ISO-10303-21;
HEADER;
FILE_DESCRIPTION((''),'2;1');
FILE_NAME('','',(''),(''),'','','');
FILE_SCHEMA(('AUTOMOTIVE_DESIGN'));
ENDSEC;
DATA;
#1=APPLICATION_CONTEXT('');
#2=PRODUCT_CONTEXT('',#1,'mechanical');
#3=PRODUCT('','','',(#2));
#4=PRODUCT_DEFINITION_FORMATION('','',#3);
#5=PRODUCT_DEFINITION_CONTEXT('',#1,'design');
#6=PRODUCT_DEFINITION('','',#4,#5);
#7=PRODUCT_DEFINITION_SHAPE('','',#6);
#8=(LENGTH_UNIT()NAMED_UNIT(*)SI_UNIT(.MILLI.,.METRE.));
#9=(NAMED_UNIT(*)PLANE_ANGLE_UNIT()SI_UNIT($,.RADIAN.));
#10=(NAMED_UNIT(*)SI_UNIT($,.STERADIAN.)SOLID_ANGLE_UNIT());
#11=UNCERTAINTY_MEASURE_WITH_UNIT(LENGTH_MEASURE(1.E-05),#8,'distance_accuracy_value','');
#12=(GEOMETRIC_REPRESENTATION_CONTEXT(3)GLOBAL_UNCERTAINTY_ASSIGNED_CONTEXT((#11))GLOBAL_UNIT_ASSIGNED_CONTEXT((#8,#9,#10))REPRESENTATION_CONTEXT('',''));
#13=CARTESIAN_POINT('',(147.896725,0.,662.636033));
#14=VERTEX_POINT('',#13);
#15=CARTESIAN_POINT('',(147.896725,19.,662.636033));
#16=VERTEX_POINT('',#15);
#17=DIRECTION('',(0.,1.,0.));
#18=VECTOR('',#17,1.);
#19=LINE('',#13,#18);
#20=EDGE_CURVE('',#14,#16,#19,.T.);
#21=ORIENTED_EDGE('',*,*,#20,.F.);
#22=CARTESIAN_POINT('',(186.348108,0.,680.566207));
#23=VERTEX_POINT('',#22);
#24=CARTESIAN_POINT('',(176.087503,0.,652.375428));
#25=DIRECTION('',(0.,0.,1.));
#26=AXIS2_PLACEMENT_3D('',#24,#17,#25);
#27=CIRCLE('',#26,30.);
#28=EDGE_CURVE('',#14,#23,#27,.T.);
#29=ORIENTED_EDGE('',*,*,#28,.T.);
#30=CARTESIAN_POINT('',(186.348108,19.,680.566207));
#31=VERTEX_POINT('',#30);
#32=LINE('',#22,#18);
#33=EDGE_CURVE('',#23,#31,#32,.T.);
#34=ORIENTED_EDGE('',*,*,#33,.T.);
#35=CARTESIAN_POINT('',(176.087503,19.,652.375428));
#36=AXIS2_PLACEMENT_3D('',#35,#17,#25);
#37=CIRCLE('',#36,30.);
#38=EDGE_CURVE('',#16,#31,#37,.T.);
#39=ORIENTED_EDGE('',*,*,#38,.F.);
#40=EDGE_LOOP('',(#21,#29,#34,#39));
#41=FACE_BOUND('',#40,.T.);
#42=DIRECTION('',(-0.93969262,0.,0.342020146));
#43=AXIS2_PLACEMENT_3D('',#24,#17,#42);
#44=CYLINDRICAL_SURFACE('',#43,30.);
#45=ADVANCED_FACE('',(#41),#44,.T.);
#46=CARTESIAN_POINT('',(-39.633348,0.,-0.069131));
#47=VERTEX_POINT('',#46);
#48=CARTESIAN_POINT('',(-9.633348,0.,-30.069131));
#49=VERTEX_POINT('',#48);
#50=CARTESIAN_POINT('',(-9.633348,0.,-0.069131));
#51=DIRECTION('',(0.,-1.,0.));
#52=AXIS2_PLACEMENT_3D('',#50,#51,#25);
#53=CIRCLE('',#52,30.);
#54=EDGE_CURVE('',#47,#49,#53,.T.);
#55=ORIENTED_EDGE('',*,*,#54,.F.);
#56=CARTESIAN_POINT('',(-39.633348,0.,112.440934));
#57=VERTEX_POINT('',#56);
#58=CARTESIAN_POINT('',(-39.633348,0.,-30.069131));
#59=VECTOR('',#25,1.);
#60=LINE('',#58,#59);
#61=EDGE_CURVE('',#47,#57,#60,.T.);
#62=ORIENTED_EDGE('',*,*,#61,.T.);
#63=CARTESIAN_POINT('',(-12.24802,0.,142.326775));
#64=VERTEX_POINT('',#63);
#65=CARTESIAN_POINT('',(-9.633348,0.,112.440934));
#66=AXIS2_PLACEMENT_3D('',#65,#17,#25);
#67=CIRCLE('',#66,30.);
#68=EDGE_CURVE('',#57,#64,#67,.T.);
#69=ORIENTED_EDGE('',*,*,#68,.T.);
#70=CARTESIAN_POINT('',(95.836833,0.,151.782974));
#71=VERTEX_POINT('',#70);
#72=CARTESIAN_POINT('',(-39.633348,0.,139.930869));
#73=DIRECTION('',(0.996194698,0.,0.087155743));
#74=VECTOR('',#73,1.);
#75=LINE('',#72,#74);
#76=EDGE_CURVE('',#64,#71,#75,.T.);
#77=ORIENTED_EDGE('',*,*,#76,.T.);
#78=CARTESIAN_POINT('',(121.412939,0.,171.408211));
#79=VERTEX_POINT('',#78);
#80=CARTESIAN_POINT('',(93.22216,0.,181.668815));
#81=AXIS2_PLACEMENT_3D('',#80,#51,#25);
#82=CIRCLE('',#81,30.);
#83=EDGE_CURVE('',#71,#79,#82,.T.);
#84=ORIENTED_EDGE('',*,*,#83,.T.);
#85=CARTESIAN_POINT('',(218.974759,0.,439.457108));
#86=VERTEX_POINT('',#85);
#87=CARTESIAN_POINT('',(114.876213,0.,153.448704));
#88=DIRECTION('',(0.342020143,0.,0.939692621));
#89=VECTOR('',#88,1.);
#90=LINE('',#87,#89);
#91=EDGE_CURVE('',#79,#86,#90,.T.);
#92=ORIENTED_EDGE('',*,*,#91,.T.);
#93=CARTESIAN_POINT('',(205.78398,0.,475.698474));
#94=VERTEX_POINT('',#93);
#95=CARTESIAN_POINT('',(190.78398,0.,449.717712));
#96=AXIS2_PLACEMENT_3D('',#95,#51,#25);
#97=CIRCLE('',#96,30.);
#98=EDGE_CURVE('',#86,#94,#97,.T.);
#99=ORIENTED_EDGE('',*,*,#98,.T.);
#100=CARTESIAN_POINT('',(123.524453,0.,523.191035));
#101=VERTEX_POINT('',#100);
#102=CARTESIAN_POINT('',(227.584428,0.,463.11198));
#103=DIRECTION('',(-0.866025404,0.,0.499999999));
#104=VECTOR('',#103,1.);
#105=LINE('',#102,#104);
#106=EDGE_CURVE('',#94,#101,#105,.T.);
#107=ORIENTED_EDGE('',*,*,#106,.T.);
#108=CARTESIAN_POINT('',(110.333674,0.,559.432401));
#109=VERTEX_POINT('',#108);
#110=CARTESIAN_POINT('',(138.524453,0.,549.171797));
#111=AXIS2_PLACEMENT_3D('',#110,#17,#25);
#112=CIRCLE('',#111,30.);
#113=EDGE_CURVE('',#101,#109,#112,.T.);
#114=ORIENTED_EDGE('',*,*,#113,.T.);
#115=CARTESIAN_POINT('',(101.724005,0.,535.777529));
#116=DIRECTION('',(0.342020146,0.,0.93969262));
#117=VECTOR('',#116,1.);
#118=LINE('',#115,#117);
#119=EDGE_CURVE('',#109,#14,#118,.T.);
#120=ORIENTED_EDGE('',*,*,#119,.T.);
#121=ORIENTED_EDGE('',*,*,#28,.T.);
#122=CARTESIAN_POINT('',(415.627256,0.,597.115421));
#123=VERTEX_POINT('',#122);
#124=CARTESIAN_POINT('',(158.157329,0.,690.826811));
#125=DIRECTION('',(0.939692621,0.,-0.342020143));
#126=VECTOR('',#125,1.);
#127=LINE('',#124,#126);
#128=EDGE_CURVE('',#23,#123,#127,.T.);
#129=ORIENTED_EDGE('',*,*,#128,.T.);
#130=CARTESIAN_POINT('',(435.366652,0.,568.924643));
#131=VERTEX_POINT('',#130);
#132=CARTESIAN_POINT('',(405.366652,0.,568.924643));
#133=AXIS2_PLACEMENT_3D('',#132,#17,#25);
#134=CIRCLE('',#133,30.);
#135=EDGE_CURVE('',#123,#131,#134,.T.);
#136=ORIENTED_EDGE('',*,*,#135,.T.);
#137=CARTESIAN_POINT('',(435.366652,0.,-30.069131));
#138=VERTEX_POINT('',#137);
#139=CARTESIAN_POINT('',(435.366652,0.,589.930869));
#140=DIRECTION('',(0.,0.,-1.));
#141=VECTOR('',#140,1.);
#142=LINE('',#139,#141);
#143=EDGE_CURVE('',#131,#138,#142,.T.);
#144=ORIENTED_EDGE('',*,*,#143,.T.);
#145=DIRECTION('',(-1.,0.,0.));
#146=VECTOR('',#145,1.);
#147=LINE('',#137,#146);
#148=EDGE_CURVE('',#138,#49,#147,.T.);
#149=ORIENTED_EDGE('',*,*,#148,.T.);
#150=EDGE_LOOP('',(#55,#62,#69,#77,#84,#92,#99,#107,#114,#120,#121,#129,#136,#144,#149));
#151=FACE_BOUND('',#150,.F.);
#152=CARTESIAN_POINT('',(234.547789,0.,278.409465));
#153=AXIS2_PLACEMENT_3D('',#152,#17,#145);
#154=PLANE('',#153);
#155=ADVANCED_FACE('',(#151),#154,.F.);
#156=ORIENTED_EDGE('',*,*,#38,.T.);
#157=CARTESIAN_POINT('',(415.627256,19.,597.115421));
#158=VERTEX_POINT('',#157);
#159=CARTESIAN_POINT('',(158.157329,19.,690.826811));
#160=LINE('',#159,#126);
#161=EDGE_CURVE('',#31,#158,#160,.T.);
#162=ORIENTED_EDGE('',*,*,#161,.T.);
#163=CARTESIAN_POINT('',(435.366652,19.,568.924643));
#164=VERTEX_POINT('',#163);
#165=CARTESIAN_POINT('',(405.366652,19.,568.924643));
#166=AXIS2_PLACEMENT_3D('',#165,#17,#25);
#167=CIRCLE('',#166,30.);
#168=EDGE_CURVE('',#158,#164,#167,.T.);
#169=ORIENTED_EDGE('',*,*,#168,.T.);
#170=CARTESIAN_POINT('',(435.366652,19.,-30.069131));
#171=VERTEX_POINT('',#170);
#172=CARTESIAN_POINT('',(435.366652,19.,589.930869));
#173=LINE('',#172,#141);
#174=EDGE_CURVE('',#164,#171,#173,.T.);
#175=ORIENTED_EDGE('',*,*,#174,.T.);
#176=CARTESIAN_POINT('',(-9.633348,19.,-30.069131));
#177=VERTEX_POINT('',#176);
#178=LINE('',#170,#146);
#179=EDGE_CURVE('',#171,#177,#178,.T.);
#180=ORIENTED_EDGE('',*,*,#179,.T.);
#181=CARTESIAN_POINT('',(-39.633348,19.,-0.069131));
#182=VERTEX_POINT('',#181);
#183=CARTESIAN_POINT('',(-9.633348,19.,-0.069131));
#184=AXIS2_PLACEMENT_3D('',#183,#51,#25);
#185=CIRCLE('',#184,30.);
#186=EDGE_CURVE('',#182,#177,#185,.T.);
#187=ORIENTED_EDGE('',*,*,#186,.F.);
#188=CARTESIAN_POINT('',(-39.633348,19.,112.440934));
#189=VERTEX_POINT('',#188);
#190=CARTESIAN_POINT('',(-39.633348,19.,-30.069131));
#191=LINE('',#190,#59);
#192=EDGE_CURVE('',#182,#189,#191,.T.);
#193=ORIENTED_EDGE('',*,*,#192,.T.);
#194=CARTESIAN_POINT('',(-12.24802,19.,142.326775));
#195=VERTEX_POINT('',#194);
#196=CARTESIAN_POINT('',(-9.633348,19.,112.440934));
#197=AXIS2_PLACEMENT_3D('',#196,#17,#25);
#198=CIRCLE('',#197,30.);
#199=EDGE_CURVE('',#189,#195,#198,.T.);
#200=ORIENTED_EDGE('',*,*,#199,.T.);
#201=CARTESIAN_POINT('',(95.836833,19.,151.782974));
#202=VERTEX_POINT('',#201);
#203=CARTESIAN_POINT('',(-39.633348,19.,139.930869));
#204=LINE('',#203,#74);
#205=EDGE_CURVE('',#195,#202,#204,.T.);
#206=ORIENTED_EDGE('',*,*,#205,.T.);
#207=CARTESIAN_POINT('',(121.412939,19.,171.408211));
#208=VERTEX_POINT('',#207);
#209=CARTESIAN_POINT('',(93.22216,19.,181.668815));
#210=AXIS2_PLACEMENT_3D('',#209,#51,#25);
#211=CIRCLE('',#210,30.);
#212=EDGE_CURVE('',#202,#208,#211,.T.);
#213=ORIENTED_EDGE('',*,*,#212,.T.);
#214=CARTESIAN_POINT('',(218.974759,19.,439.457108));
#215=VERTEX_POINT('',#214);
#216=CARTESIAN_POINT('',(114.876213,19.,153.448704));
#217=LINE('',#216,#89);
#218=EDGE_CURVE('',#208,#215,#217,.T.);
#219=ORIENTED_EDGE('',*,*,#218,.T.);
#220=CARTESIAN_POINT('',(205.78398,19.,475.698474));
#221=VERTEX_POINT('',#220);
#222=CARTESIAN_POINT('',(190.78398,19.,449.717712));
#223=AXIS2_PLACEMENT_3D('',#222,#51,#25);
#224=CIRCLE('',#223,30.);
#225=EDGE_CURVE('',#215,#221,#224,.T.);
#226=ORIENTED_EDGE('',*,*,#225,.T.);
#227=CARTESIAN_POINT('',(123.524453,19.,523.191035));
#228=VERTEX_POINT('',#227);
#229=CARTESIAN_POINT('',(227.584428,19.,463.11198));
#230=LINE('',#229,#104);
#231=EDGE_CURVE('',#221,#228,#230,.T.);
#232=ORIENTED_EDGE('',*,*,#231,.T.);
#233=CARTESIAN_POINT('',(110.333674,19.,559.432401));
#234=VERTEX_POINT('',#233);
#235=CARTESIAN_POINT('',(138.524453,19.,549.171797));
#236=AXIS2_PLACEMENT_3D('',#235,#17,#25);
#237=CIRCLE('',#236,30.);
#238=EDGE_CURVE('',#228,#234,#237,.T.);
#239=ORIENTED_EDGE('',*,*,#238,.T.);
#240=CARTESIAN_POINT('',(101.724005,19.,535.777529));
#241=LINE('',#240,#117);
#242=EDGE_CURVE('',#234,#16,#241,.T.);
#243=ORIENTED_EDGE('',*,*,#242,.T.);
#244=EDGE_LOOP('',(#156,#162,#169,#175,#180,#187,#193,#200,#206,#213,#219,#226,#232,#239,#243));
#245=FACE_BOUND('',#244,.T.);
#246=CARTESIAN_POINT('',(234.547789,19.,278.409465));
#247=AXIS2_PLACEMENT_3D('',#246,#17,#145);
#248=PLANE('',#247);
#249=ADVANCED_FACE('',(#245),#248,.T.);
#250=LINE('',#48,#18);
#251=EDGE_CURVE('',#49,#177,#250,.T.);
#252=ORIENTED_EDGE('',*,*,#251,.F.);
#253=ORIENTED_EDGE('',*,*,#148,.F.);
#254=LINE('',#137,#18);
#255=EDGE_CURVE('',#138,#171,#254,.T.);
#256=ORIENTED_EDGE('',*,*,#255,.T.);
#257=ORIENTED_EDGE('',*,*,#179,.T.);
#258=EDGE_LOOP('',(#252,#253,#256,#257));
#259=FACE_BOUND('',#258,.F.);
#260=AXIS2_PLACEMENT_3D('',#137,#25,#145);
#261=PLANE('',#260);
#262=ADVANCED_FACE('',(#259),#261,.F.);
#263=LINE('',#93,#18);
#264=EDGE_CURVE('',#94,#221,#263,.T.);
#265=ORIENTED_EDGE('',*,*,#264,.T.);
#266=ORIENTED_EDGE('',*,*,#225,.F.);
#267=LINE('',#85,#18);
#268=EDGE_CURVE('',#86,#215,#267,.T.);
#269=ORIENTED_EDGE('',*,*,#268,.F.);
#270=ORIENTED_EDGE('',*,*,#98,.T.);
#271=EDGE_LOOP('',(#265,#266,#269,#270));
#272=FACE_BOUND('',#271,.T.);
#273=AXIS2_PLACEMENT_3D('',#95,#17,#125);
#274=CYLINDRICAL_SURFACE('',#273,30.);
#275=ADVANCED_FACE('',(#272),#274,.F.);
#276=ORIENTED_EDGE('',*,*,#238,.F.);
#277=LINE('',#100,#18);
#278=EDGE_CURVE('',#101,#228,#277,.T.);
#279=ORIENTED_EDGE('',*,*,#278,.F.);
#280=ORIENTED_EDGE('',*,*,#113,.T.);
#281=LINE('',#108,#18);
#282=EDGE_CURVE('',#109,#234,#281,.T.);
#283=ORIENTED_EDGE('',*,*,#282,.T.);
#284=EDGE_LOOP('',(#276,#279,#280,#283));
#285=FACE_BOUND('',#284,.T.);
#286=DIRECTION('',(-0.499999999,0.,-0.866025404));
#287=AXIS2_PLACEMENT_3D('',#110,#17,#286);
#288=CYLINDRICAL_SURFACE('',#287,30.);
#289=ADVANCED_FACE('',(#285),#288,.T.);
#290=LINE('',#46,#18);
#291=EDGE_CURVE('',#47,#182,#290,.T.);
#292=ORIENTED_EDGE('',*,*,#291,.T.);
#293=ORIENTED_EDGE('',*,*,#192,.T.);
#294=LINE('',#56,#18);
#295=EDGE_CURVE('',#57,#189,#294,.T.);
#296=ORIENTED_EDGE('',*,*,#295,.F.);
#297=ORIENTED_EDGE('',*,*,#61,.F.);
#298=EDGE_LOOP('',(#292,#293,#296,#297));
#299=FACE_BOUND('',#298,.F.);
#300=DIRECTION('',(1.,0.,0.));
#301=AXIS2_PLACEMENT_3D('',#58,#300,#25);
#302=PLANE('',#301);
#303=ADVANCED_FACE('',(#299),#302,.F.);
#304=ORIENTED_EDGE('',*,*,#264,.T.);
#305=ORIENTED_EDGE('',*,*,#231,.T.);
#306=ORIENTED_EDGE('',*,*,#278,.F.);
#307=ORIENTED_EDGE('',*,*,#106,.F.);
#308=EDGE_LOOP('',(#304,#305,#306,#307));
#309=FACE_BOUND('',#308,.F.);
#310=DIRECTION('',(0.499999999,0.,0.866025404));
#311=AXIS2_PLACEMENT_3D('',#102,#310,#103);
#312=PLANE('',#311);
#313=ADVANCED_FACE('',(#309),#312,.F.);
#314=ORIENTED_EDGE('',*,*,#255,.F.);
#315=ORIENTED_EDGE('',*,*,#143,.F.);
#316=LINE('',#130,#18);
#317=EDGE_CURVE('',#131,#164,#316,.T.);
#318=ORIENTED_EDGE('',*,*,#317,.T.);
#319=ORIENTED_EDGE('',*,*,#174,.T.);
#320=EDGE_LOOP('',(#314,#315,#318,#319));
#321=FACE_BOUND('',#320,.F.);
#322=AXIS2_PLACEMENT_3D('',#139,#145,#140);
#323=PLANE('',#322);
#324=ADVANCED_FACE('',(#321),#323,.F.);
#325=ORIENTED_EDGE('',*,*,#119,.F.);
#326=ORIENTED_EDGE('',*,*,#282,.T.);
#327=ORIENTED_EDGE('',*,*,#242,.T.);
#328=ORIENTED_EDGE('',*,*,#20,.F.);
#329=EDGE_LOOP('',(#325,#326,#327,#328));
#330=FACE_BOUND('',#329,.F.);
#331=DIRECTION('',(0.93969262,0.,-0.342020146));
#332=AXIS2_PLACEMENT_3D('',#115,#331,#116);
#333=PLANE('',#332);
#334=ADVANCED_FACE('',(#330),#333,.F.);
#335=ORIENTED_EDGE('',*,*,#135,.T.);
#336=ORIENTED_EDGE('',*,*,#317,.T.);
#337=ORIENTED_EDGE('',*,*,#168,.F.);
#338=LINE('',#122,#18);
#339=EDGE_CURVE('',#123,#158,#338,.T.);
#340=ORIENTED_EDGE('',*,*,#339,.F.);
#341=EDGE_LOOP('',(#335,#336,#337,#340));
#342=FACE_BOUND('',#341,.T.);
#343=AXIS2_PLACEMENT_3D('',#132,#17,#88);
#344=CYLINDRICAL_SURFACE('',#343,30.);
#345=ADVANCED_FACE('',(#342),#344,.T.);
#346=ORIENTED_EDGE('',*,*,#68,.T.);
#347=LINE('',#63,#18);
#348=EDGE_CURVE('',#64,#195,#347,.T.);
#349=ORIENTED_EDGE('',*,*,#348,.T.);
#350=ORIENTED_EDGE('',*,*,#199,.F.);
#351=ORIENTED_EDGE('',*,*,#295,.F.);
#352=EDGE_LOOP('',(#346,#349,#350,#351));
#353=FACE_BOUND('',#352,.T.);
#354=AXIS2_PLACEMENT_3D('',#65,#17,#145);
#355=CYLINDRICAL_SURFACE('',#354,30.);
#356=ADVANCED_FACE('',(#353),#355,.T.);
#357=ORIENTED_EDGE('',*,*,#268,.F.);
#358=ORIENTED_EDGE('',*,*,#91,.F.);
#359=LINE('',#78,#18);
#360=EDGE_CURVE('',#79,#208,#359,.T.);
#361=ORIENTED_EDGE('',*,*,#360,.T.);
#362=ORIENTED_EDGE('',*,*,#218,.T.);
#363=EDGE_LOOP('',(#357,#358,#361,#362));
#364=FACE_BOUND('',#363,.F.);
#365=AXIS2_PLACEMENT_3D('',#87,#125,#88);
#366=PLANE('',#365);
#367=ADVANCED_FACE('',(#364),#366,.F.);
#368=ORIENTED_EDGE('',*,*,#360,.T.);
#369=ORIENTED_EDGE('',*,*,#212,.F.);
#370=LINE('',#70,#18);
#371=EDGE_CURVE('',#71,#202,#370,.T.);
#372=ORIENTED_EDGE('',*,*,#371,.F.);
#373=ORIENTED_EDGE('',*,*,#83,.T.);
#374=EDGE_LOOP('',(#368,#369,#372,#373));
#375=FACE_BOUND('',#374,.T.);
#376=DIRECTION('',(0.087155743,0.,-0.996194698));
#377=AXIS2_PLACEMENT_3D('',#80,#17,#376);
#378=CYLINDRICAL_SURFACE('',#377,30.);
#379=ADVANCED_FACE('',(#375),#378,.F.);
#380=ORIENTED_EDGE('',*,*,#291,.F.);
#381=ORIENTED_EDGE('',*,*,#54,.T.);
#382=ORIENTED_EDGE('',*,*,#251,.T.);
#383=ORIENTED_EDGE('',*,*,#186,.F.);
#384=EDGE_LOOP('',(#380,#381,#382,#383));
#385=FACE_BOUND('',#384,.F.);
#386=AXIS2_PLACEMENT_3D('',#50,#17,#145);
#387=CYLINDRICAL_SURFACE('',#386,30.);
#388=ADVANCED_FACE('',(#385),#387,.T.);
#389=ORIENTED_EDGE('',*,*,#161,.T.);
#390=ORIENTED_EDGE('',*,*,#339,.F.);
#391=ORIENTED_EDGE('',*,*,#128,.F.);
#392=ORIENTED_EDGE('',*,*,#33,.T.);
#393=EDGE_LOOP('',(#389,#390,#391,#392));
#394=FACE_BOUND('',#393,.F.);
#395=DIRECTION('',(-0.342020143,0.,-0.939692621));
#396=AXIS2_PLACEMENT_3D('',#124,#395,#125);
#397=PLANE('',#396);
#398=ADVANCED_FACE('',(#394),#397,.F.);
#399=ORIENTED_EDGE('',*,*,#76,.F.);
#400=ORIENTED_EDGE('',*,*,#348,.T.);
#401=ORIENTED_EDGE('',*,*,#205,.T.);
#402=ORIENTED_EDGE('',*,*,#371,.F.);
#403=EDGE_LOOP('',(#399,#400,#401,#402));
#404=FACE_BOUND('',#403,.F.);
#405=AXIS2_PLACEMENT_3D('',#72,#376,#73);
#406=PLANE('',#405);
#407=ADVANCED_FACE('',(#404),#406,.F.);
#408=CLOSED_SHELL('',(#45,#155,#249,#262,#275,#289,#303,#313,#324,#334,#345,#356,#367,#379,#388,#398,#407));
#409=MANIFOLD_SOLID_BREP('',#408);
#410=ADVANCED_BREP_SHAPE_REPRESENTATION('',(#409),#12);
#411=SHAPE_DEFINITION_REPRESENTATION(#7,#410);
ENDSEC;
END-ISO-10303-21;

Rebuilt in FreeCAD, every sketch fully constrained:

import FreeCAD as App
import Part
import Sketcher
Q = App.Units.Quantity


def edges_at(feature, points):
    """Names of the edges that pass closest to the given points."""
    edges = feature.Shape.Edges
    near = lambda p: min(range(len(edges)), key=lambda i: edges[i].distToShape(Part.Vertex(*p))[0])
    return sorted({f"Edge{near(p) + 1}" for p in points})


def add_polygon(sketch, points):
    """Adds a closed chain of lines whose ends are joined by coincident constraints."""
    first, n = sketch.GeometryCount, len(points)
    for a, b in zip(points, points[1:] + points[:1]):
        sketch.addGeometry(Part.LineSegment(App.Vector(*a, 0), App.Vector(*b, 0)), False)
    for i in range(n):
        sketch.addConstraint(Sketcher.Constraint("Coincident", first + i, 2, first + (i + 1) % n, 1))

doc = App.newDocument("Part")
body = doc.addObject("PartDesign::Body", "Body")

sketch1 = doc.addObject("Sketcher::SketchObject", "Sketch")
body.addObject(sketch1)
sketch1.AttachmentSupport = (doc.XZ_Plane, [""])
sketch1.MapMode = "FlatFace"
add_polygon(sketch1, [(-40, 140), (-40, -30), (435, -30), (435, 590), (158, 691), (102, 536), (228, 463), (115, 153)])
sketch1.addConstraint([
    Sketcher.Constraint("Vertical", 0),
    Sketcher.Constraint("Horizontal", 1),
    Sketcher.Constraint("Vertical", 2),
    Sketcher.Constraint("Perpendicular", 3, 4),
    Sketcher.Constraint("Parallel", 4, 6),
    Sketcher.Constraint("DistanceX", 1, 1, 1, 2, 475.0),
    Sketcher.Constraint("DistanceY", 0, 2, 0, 1, 170.0),
    Sketcher.Constraint("DistanceY", 2, 1, 2, 2, 620.0),
    Sketcher.Constraint("Angle", 3, Q("160 deg")),
    Sketcher.Constraint("Angle", 5, Q("-30 deg")),
    Sketcher.Constraint("Angle", 7, Q("-175 deg")),
    Sketcher.Constraint("Distance", 3, 295.0),
    Sketcher.Constraint("Distance", 4, 165.0),
    Sketcher.Constraint("Distance", 5, 145.331098),
    Sketcher.Constraint("DistanceY", 0, 2, -1, 1, 30.069131),
    Sketcher.Constraint("DistanceX", -1, 1, 1, 2, 435.366652),
])
pad1 = doc.addObject("PartDesign::Pad", "Pad")
body.addObject(pad1)
pad1.Profile = sketch1
pad1.Length = 19
pad1.Reversed = True
doc.recompute()

fillet = doc.addObject("PartDesign::Fillet", "Fillet")
body.addObject(fillet)
fillet.Base = (pad1, edges_at(pad1, [
    (-39.633, 9.5, -30.069),
    (-39.633, 9.5, 139.931),
    (101.724, 9.5, 535.778),
    (158.157, 9.5, 690.827),
    (435.367, 9.5, 589.931),
    (227.584, 9.5, 463.112),
    (114.876, 9.5, 153.449),
]))
fillet.Radius = 30

doc.recompute()
